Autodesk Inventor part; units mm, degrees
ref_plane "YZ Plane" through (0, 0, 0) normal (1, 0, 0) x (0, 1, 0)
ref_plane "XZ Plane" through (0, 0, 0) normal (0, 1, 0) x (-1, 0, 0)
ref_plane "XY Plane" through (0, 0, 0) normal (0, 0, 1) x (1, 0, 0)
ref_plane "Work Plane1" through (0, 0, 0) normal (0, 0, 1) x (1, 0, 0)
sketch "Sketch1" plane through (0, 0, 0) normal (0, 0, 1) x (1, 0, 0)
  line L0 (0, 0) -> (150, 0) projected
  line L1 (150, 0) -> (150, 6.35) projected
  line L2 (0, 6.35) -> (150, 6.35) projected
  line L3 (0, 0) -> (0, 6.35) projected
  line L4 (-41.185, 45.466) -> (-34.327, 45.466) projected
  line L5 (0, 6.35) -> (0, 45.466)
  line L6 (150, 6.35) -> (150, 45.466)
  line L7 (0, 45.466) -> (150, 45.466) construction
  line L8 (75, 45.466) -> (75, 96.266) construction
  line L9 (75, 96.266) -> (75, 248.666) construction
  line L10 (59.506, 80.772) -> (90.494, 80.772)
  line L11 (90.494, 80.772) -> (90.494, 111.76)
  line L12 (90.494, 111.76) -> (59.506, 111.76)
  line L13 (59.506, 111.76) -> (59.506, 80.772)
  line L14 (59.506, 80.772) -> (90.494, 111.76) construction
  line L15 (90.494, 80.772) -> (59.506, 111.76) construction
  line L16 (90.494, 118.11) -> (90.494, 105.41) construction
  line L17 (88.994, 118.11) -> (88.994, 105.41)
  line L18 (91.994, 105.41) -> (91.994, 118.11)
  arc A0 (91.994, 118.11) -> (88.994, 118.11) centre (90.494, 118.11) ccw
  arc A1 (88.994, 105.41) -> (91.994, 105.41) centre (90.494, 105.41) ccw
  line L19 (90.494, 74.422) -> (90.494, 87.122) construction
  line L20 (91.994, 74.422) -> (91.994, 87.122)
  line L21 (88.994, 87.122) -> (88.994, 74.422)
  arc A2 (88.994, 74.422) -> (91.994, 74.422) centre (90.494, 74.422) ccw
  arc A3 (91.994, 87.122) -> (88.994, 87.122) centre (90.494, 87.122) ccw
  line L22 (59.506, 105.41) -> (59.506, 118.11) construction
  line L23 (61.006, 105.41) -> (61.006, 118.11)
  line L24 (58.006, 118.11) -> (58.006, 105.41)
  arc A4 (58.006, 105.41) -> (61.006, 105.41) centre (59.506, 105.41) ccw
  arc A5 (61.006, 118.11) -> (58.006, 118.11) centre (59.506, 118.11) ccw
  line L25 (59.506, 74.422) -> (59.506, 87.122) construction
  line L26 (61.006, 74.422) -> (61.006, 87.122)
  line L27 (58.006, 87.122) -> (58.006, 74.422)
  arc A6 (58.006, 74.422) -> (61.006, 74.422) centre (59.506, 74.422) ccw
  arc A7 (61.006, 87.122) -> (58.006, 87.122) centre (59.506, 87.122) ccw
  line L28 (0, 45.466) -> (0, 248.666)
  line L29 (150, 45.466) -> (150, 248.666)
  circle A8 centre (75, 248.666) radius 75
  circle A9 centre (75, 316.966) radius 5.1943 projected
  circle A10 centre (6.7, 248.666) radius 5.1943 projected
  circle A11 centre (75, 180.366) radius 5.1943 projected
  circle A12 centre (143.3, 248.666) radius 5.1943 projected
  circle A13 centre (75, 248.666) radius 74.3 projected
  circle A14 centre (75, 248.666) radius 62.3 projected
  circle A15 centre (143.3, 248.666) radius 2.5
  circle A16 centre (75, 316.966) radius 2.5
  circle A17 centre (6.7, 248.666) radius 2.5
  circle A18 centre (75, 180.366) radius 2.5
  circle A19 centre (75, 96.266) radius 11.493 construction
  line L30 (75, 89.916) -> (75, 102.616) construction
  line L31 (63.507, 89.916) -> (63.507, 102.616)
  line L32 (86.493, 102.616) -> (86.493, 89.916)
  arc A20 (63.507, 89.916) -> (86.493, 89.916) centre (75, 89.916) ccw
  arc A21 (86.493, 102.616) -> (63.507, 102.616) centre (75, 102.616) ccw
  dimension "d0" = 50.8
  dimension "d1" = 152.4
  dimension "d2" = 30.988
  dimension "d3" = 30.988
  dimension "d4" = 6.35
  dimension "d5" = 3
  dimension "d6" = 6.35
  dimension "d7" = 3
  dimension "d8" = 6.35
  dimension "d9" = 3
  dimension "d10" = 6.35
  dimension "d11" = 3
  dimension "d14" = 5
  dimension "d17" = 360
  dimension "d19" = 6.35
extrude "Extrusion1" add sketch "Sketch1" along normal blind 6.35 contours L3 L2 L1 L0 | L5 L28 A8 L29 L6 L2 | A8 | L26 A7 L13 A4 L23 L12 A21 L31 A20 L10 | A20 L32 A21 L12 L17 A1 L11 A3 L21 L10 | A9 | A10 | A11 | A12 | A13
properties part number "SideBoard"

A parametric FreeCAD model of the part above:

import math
import FreeCAD as App
import Part
import Sketcher
from FreeCAD import Vector
Q = App.Units.Quantity

doc = App.newDocument("Part")
params = doc.addObject("Spreadsheet::Sheet", "Params")
for row, (alias, value) in enumerate([
    ("sketch1_height", "0.5 in"),
    ("sketch1_height2", "9.79 in"),
    ("pad1_length", "0.25 in"),
], start=1):
    params.set(f"A{row}", alias)
    params.set(f"B{row}", "=" + value)
    params.setAlias(f"B{row}", alias)

body = doc.addObject("PartDesign::Body", "Body")

# Sketch on XY plane
sketch1 = body.newObject("Sketcher::SketchObject", "Sketch")
sketch1.AttachmentSupport = (doc.getObject("XY_Plane"), [""])
sketch1.MapMode = "FlatFace"
sketch1.addGeometry(Part.LineSegment(Vector(0, 0, 0), Vector(150, 0, 0)), False)
sketch1.addGeometry(Part.LineSegment(Vector(150, 0, 0), Vector(150, 248.7, 0)), False)
sketch1.addGeometry(Part.ArcOfCircle(Part.Circle(Vector(75, 248.7, 0), Vector(0, 0, 1), 75), math.radians(0), math.radians(180)), False)
sketch1.addGeometry(Part.LineSegment(Vector(0, 248.7, 0), Vector(0, 0, 0)), False)
sketch1.addGeometry(Part.ArcOfCircle(Part.Circle(Vector(59.5, 74.4, 0), Vector(0, 0, 1), 1.5), math.radians(180), math.radians(360)), False)
sketch1.addGeometry(Part.LineSegment(Vector(58, 74.4, 0), Vector(58, 87.1, 0)), False)
sketch1.addGeometry(Part.ArcOfCircle(Part.Circle(Vector(59.5, 87.1, 0), Vector(0, 0, 1), 1.5), math.radians(0), math.radians(180)), False)
sketch1.addGeometry(Part.LineSegment(Vector(61, 87.1, 0), Vector(61, 74.4, 0)), False)
sketch1.addGeometry(Part.LineSegment(Vector(63.5, 89.9, 0), Vector(63.5, 102.6, 0)), False)
sketch1.addGeometry(Part.ArcOfCircle(Part.Circle(Vector(75, 102.6, 0), Vector(0, 0, 1), 11.5), math.radians(0), math.radians(180)), False)
sketch1.addGeometry(Part.LineSegment(Vector(86.5, 102.6, 0), Vector(86.5, 89.9, 0)), False)
sketch1.addGeometry(Part.ArcOfCircle(Part.Circle(Vector(75, 89.9, 0), Vector(0, 0, 1), 11.5), math.radians(180), math.radians(360)), False)
sketch1.addGeometry(Part.LineSegment(Vector(89, 74.4, 0), Vector(89, 87.1, 0)), False)
sketch1.addGeometry(Part.ArcOfCircle(Part.Circle(Vector(90.5, 87.1, 0), Vector(0, 0, 1), 1.5), math.radians(0), math.radians(180)), False)
sketch1.addGeometry(Part.LineSegment(Vector(92, 87.1, 0), Vector(92, 74.4, 0)), False)
sketch1.addGeometry(Part.ArcOfCircle(Part.Circle(Vector(90.5, 74.4, 0), Vector(0, 0, 1), 1.5), math.radians(180), math.radians(360)), False)
sketch1.addGeometry(Part.ArcOfCircle(Part.Circle(Vector(90.5, 105.4, 0), Vector(0, 0, 1), 1.5), math.radians(180), math.radians(360)), False)
sketch1.addGeometry(Part.LineSegment(Vector(89, 105.4, 0), Vector(89, 118.1, 0)), False)
sketch1.addGeometry(Part.ArcOfCircle(Part.Circle(Vector(90.5, 118.1, 0), Vector(0, 0, 1), 1.5), math.radians(0), math.radians(180)), False)
sketch1.addGeometry(Part.LineSegment(Vector(92, 118.1, 0), Vector(92, 105.4, 0)), False)
sketch1.addGeometry(Part.LineSegment(Vector(61, 118.1, 0), Vector(61, 105.4, 0)), False)
sketch1.addGeometry(Part.ArcOfCircle(Part.Circle(Vector(59.5, 105.4, 0), Vector(0, 0, 1), 1.5), math.radians(180), math.radians(360)), False)
sketch1.addGeometry(Part.LineSegment(Vector(58, 105.4, 0), Vector(58, 118.1, 0)), False)
sketch1.addGeometry(Part.ArcOfCircle(Part.Circle(Vector(59.5, 118.1, 0), Vector(0, 0, 1), 1.5), math.radians(0), math.radians(180)), False)
sketch1.addGeometry(Part.Circle(Vector(75, 248.7, 0), Vector(0, 0, 1), 62.3), False)
sketch1.addGeometry(Part.Circle(Vector(143.3, 248.7, 0), Vector(0, 0, 1), 2.5), False)
sketch1.addGeometry(Part.Circle(Vector(6.7, 248.7, 0), Vector(0, 0, 1), 2.5), False)
sketch1.addGeometry(Part.Circle(Vector(75, 180.4, 0), Vector(0, 0, 1), 2.5), False)
sketch1.addGeometry(Part.Circle(Vector(75, 317, 0), Vector(0, 0, 1), 2.5), False)
sketch1.addConstraint(Sketcher.Constraint("Coincident", 0, 2, 1, 1))
sketch1.addConstraint(Sketcher.Constraint("Tangent", 1, 2, 2, 1))
sketch1.addConstraint(Sketcher.Constraint("Tangent", 2, 2, 3, 1))
sketch1.addConstraint(Sketcher.Constraint("Coincident", 3, 2, 0, 1))
sketch1.addConstraint(Sketcher.Constraint("Tangent", 4, 1, 5, 1))
sketch1.addConstraint(Sketcher.Constraint("Tangent", 5, 2, 6, 2))
sketch1.addConstraint(Sketcher.Constraint("Tangent", 6, 1, 7, 1))
sketch1.addConstraint(Sketcher.Constraint("Tangent", 7, 2, 4, 2))
sketch1.addConstraint(Sketcher.Constraint("Tangent", 8, 2, 9, 2))
sketch1.addConstraint(Sketcher.Constraint("Tangent", 9, 1, 10, 1))
sketch1.addConstraint(Sketcher.Constraint("Tangent", 10, 2, 11, 2))
sketch1.addConstraint(Sketcher.Constraint("Tangent", 11, 1, 8, 1))
sketch1.addConstraint(Sketcher.Constraint("Tangent", 12, 2, 13, 2))
sketch1.addConstraint(Sketcher.Constraint("Tangent", 13, 1, 14, 1))
sketch1.addConstraint(Sketcher.Constraint("Tangent", 14, 2, 15, 2))
sketch1.addConstraint(Sketcher.Constraint("Tangent", 15, 1, 12, 1))
sketch1.addConstraint(Sketcher.Constraint("Tangent", 16, 1, 17, 1))
sketch1.addConstraint(Sketcher.Constraint("Tangent", 17, 2, 18, 2))
sketch1.addConstraint(Sketcher.Constraint("Tangent", 18, 1, 19, 1))
sketch1.addConstraint(Sketcher.Constraint("Tangent", 19, 2, 16, 2))
sketch1.addConstraint(Sketcher.Constraint("Tangent", 20, 2, 21, 2))
sketch1.addConstraint(Sketcher.Constraint("Tangent", 21, 1, 22, 1))
sketch1.addConstraint(Sketcher.Constraint("Tangent", 22, 2, 23, 2))
sketch1.addConstraint(Sketcher.Constraint("Tangent", 23, 1, 20, 1))
sketch1.addConstraint(Sketcher.Constraint("Horizontal", 0))
sketch1.addConstraint(Sketcher.Constraint("Vertical", 1))
sketch1.addConstraint(Sketcher.Constraint("Vertical", 3))
sketch1.addConstraint(Sketcher.Constraint("Vertical", 5))
sketch1.addConstraint(Sketcher.Constraint("Vertical", 7))
sketch1.addConstraint(Sketcher.Constraint("Vertical", 8))
sketch1.addConstraint(Sketcher.Constraint("Vertical", 10))
sketch1.addConstraint(Sketcher.Constraint("Vertical", 12))
sketch1.addConstraint(Sketcher.Constraint("Vertical", 14))
sketch1.addConstraint(Sketcher.Constraint("Vertical", 17))
sketch1.addConstraint(Sketcher.Constraint("Vertical", 19))
sketch1.addConstraint(Sketcher.Constraint("Vertical", 20))
sketch1.addConstraint(Sketcher.Constraint("Vertical", 22))
sketch1.addConstraint(Sketcher.Constraint("Coincident", 3, 2, -1, 1))
sketch1.addConstraint(Sketcher.Constraint("Coincident", 24, 3, 2, 3))
sketch1.addConstraint(Sketcher.Constraint("Equal", 6, 13))
sketch1.addConstraint(Sketcher.Constraint("Equal", 15, 16))
sketch1.addConstraint(Sketcher.Constraint("Equal", 18, 21))
sketch1.addConstraint(Sketcher.Constraint("Equal", 25, 26))
sketch1.addConstraint(Sketcher.Constraint("Equal", 26, 27))
sketch1.addConstraint(Sketcher.Constraint("Equal", 27, 28))
sketch1.addConstraint(Sketcher.Constraint("Horizontal", 6, 3, 13, 3))
sketch1.addConstraint(Sketcher.Constraint("Horizontal", 4, 3, 15, 3))
sketch1.addConstraint(Sketcher.Constraint("Horizontal", 16, 3, 21, 3))
sketch1.addConstraint(Sketcher.Constraint("Horizontal", 18, 3, 23, 3))
sketch1.addConstraint(Sketcher.Constraint("Horizontal", 24, 3, 25, 3))
sketch1.addConstraint(Sketcher.Constraint("Horizontal", 25, 3, 26, 3))
sketch1.addConstraint(Sketcher.Constraint("Vertical", 2, 3, 9, 3))
sketch1.addConstraint(Sketcher.Constraint("Vertical", 15, 3, 16, 3))
sketch1.addConstraint(Sketcher.Constraint("Vertical", 6, 3, 21, 3))
sketch1.addConstraint(Sketcher.Constraint("Vertical", 24, 3, 27, 3))
sketch1.addConstraint(Sketcher.Constraint("Vertical", 27, 3, 28, 3))
sketch1.addConstraint(Sketcher.Constraint("Equal", 7, 8))
sketch1.addConstraint(Sketcher.Constraint("Equal", 14, 17))
sketch1.addConstraint(Sketcher.Constraint("Diameter", 25, Q("5 mm")))
sketch1.addConstraint(Sketcher.Constraint("Radius", 4, Q("1.5 mm")))
sketch1.addConstraint(Sketcher.Constraint("DistanceX", 6, 3, 13, 3, Q("1.22 in")))
sketch1.addConstraint(Sketcher.Constraint("DistanceY", 15, 3, 16, 3, Q("1.22 in")))
sketch1.addConstraint(Sketcher.Constraint("DistanceY", 5, 1, 5, 2, Q("0.5 in")))
sketch1.addConstraint(Sketcher.Constraint("Diameter", 24, Q("4.9055 in")))
sketch1.addConstraint(Sketcher.Constraint("DistanceY", 1, 1, 1, 2, Q("9.79 in")))
sketch1.addConstraint(Sketcher.Constraint("DistanceY", -1, 1, 4, 3, Q("2.93 in")))
sketch1.addConstraint(Sketcher.Constraint("DistanceY", -1, 1, 9, 3, Q("4.04 in")))
sketch1.addConstraint(Sketcher.Constraint("Radius", 2, Q("75 mm")))
sketch1.addConstraint(Sketcher.Constraint("Radius", 9, Q("11.493 mm")))
sketch1.addConstraint(Sketcher.Constraint("DistanceX", 4, 3, 2, 3, Q("0.61 in")))
sketch1.addConstraint(Sketcher.Constraint("DistanceX", -1, 1, 25, 3, Q("143.3 mm")))
sketch1.addConstraint(Sketcher.Constraint("DistanceX", -1, 1, 26, 3, Q("6.7 mm")))
sketch1.addConstraint(Sketcher.Constraint("DistanceY", -1, 1, 27, 3, Q("180.366 mm")))
sketch1.addConstraint(Sketcher.Constraint("DistanceY", -1, 1, 28, 3, Q("316.966 mm")))
sketch1.setExpression("Constraints[62]", "Params.sketch1_height")
sketch1.setExpression("Constraints[64]", "Params.sketch1_height2")
pad1 = body.newObject("PartDesign::Pad", "Pad")
pad1.Profile = sketch1
pad1.setExpression("Length", "Params.pad1_length")

doc.recompute()
